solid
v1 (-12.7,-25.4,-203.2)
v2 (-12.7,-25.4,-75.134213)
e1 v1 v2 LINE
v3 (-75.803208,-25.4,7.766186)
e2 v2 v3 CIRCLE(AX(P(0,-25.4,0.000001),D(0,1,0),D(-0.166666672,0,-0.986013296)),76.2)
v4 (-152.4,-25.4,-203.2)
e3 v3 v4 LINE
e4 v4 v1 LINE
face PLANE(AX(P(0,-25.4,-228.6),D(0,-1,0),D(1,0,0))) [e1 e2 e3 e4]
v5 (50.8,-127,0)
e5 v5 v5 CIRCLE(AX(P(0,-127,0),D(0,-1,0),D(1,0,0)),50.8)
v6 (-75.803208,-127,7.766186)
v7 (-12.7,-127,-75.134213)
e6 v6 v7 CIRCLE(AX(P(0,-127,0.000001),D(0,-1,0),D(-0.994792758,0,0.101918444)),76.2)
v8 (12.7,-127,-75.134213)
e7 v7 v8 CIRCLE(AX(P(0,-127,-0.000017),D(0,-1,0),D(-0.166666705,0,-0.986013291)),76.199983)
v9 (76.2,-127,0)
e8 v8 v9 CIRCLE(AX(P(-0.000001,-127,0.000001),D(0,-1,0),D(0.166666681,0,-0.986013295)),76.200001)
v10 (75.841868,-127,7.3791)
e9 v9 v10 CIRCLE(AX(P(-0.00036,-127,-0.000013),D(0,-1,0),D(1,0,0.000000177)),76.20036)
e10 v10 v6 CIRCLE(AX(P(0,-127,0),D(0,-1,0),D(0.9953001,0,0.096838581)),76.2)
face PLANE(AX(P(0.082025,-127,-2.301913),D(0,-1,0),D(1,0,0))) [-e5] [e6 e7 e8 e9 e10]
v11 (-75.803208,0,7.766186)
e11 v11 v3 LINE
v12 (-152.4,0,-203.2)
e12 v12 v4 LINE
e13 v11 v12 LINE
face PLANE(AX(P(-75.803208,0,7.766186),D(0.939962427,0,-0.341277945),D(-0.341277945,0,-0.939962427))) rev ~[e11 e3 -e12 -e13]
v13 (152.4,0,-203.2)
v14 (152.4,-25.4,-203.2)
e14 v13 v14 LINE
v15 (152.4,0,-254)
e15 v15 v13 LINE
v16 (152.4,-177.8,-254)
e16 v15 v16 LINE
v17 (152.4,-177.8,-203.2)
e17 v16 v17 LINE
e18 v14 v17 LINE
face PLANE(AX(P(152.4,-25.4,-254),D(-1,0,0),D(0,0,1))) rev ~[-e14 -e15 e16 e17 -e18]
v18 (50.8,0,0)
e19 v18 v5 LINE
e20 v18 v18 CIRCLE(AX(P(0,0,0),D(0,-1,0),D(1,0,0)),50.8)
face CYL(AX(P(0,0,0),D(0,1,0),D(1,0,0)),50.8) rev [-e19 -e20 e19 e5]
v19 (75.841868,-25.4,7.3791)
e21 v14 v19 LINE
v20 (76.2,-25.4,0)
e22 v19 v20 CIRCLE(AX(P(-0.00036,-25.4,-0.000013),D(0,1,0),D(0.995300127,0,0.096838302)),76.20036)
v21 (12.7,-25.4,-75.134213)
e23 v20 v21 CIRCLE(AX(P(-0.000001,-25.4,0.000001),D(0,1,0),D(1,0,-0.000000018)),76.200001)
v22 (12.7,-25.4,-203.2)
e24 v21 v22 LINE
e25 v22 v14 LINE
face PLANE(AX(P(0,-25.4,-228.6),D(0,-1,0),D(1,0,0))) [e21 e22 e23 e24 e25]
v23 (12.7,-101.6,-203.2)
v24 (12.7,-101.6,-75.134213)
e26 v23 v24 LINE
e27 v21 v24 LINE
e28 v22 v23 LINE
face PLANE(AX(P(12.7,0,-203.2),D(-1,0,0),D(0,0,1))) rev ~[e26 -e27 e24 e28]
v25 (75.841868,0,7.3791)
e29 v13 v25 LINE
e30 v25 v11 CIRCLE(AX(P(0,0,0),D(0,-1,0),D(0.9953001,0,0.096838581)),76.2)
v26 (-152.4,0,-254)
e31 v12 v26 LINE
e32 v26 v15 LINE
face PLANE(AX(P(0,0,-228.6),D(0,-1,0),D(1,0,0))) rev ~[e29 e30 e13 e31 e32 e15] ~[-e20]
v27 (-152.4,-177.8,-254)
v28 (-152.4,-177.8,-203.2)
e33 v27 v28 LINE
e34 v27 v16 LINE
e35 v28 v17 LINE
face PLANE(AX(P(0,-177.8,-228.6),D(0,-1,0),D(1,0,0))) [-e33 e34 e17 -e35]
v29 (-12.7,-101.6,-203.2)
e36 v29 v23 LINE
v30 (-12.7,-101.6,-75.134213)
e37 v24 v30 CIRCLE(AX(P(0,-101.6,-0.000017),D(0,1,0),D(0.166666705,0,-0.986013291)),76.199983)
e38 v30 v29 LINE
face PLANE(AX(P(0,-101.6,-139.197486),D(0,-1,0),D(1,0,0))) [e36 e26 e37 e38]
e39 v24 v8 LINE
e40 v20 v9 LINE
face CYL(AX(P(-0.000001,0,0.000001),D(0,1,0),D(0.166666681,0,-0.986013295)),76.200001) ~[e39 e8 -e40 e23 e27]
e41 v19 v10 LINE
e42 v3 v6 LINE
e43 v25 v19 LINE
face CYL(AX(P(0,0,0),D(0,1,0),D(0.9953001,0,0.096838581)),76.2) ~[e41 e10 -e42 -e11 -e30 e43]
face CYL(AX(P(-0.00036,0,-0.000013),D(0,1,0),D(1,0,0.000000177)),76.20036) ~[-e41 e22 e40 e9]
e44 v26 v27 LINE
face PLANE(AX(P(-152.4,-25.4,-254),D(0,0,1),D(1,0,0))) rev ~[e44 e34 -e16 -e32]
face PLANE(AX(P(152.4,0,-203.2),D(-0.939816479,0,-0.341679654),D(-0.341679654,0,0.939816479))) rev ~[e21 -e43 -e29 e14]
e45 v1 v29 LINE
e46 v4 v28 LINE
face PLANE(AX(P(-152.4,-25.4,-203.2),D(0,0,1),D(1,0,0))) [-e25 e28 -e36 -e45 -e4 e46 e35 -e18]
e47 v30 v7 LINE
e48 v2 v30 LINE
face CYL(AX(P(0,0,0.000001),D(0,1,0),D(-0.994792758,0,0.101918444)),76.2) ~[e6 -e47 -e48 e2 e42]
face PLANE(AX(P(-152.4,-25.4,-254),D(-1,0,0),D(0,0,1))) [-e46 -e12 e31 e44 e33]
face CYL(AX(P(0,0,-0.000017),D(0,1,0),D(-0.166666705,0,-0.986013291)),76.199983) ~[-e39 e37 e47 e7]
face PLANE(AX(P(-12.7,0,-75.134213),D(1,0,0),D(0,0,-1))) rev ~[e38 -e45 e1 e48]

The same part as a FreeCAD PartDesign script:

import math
import FreeCAD as App
import Part
import Sketcher
from FreeCAD import Vector
Q = App.Units.Quantity

doc = App.newDocument("Part")
body = doc.addObject("PartDesign::Body", "Body")

# Sketch on XZ plane
sketch1 = body.newObject("Sketcher::SketchObject", "Sketch")
sketch1.AttachmentSupport = (doc.getObject("XZ_Plane"), [""])
sketch1.MapMode = "FlatFace"
sketch1.addGeometry([
    Part.ArcOfCircle(Part.Circle(Vector(-0.000001, 0.000001, 0), Vector(0, 0, 1), 76.200001), math.radians(-80.405931), math.radians(-0.000001)),  # 0
    Part.ArcOfCircle(Part.Circle(Vector(-0.00036, -0.000013, 0), Vector(0, 0, 1), 76.20036), math.radians(0.00001), math.radians(5.557135)),  # 1
    Part.ArcOfCircle(Part.Circle(Vector(0, 0, 0), Vector(0, 0, 1), 76.2), math.radians(5.557151), math.radians(174.150346)),  # 2
    Part.ArcOfCircle(Part.Circle(Vector(0, 0.000001, 0), Vector(0, 0, 1), 76.2), math.radians(174.150346), math.radians(260.405931)),  # 3
    Part.ArcOfCircle(Part.Circle(Vector(0, -0.000017, 0), Vector(0, 0, 1), 76.199983), math.radians(-99.59407), math.radians(-80.40593)),  # 4
    Part.Circle(Vector(0, 0, 0), Vector(0, 0, 1), 50.8),  # 5
], False)
sketch1.addConstraint([
    Sketcher.Constraint("Coincident", 0, 2, 1, 1),
    Sketcher.Constraint("Coincident", 1, 2, 2, 1),
    Sketcher.Constraint("Coincident", 2, 2, 3, 1),
    Sketcher.Constraint("Coincident", 3, 2, 4, 1),
    Sketcher.Constraint("Coincident", 4, 2, 0, 1),
    Sketcher.Constraint("Coincident", 0, 3, -1, 1),
    Sketcher.Constraint("Coincident", 2, 3, -1, 1),
    Sketcher.Constraint("Coincident", 3, 3, -1, 1),
    Sketcher.Constraint("Coincident", 5, 3, -1, 1),
    Sketcher.Constraint("PointOnObject", 4, 3, -2),
    Sketcher.Constraint("PointOnObject", 0, 2, -1),
    Sketcher.Constraint("Diameter", 5, Q("4 in")),
    Sketcher.Constraint("Radius", 0, Q("3.0000001 in")),
    Sketcher.Constraint("DistanceX", 3, 2, 4, 2, Q("1 in")),
    Sketcher.Constraint("DistanceX", 3, 2, -1, 1, Q("0.5 in")),
    Sketcher.Constraint("Radius", 1, Q("76.20036 mm")),
    Sketcher.Constraint("Radius", 4, Q("76.199983 mm")),
    Sketcher.Constraint("DistanceY", -1, 1, 1, 2, Q("7.3791 mm")),
    Sketcher.Constraint("DistanceY", 1, 3, 2, 2, Q("7.766199 mm")),
])
pad1 = body.newObject("PartDesign::Pad", "Pad")
pad1.Profile = sketch1
pad1.Length = Q("5 in")

# Sketch on XZ plane
sketch2 = body.newObject("Sketcher::SketchObject", "Sketch001")
sketch2.AttachmentSupport = (doc.getObject("XZ_Plane"), [""])
sketch2.MapMode = "FlatFace"
sketch2.addGeometry([
    Part.LineSegment(Vector(12.7, -203.2, 0), Vector(12.7, -75.134213, 0)),
    Part.ArcOfCircle(Part.Circle(Vector(0, -0.000017, 0), Vector(0, 0, 1), 76.199983), math.radians(-99.59407), math.radians(-80.40593)),
    Part.LineSegment(Vector(-12.7, -75.134213, 0), Vector(-12.7, -203.2, 0)),
    Part.LineSegment(Vector(-12.7, -203.2, 0), Vector(12.7, -203.2, 0)),
], False)
sketch2.addConstraint([
    Sketcher.Constraint("Coincident", 0, 2, 1, 2),
    Sketcher.Constraint("Coincident", 1, 1, 2, 1),
    Sketcher.Constraint("Coincident", 2, 2, 3, 1),
    Sketcher.Constraint("Coincident", 3, 2, 0, 1),
    Sketcher.Constraint("Vertical", 0),
    Sketcher.Constraint("Vertical", 2),
    Sketcher.Constraint("Horizontal", 3),
    Sketcher.Constraint("Symmetric", 0, 2, 1, 1, -2),
    Sketcher.Constraint("DistanceX", 3, 1, 3, 2, Q("1 in")),
    Sketcher.Constraint("DistanceY", 2, 2, -1, 1, Q("8 in")),
    Sketcher.Constraint("Radius", 1, Q("76.199983 mm")),
    Sketcher.Constraint("DistanceY", 0, 1, 0, 2, Q("128.065787 mm")),
])
pad2 = body.newObject("PartDesign::Pad", "Pad001")
pad2.Profile = sketch2
pad2.Length = Q("4 in")

# Sketch on XZ plane
sketch3 = body.newObject("Sketcher::SketchObject", "Sketch002")
sketch3.AttachmentSupport = (doc.getObject("XZ_Plane"), [""])
sketch3.MapMode = "FlatFace"
sketch3.addGeometry([
    Part.ArcOfCircle(Part.Circle(Vector(0, 0.000001, 0), Vector(0, 0, 1), 76.2), math.radians(174.150346), math.radians(260.405931)),  # 0
    Part.LineSegment(Vector(-75.803208, 7.766186, 0), Vector(-152.4, -203.2, 0)),  # 1
    Part.LineSegment(Vector(-152.4, -203.2, 0), Vector(-12.7, -203.2, 0)),  # 2
    Part.LineSegment(Vector(-12.7, -203.2, 0), Vector(-12.7, -75.134213, 0)),  # 3
    Part.ArcOfCircle(Part.Circle(Vector(-0.00036, -0.000013, 0), Vector(0, 0, 1), 76.20036), math.radians(0.00001), math.radians(5.557135)),  # 4
    Part.ArcOfCircle(Part.Circle(Vector(-0.000001, 0.000001, 0), Vector(0, 0, 1), 76.200001), math.radians(-80.405931), math.radians(-0.000001)),  # 5
    Part.LineSegment(Vector(12.7, -75.134213, 0), Vector(12.7, -203.2, 0)),  # 6
    Part.LineSegment(Vector(12.7, -203.2, 0), Vector(152.4, -203.2, 0)),  # 7
    Part.LineSegment(Vector(152.4, -203.2, 0), Vector(75.841868, 7.3791, 0)),  # 8
], False)
sketch3.addConstraint([
    Sketcher.Constraint("Coincident", 0, 1, 1, 1),
    Sketcher.Constraint("Coincident", 1, 2, 2, 1),
    Sketcher.Constraint("Coincident", 2, 2, 3, 1),
    Sketcher.Constraint("Coincident", 3, 2, 0, 2),
    Sketcher.Constraint("Tangent", 4, 1, 5, 2),
    Sketcher.Constraint("Coincident", 5, 1, 6, 1),
    Sketcher.Constraint("Coincident", 6, 2, 7, 1),
    Sketcher.Constraint("Coincident", 7, 2, 8, 1),
    Sketcher.Constraint("Coincident", 8, 2, 4, 2),
    Sketcher.Constraint("Horizontal", 2),
    Sketcher.Constraint("Vertical", 3),
    Sketcher.Constraint("Vertical", 6),
    Sketcher.Constraint("Horizontal", 7),
    Sketcher.Constraint("Coincident", 0, 3, -1, 1),
    Sketcher.Constraint("Coincident", 5, 3, -1, 1),
    Sketcher.Constraint("Equal", 0, 5),
    Sketcher.Constraint("Symmetric", 2, 2, 6, 2, -2),
    Sketcher.Constraint("PointOnObject", 4, 1, -1),
    Sketcher.Constraint("Equal", 2, 7),
    Sketcher.Constraint("Radius", 0, Q("3 in")),
    Sketcher.Constraint("DistanceX", 2, 1, 2, 2, Q("5.5 in")),
    Sketcher.Constraint("DistanceX", 1, 2, -1, 1, Q("6 in")),
    Sketcher.Constraint("DistanceY", 1, 2, -1, 1, Q("8 in")),
    Sketcher.Constraint("Radius", 4, Q("76.20036 mm")),
    Sketcher.Constraint("DistanceY", -1, 1, 8, 2, Q("7.3791 mm")),
    Sketcher.Constraint("DistanceY", 4, 3, 0, 1, Q("7.766199 mm")),
])
pad3 = body.newObject("PartDesign::Pad", "Pad002")
pad3.Profile = sketch3
pad3.Length = Q("1 in")

# Sketch on XZ plane
sketch4 = body.newObject("Sketcher::SketchObject", "Sketch003")
sketch4.AttachmentSupport = (doc.getObject("XZ_Plane"), [""])
sketch4.MapMode = "FlatFace"
sketch4.addGeometry([
    Part.LineSegment(Vector(152.4, -254, 0), Vector(152.4, -203.2, 0)),
    Part.LineSegment(Vector(152.4, -203.2, 0), Vector(-152.4, -203.2, 0)),
    Part.LineSegment(Vector(-152.4, -203.2, 0), Vector(-152.4, -254, 0)),
    Part.LineSegment(Vector(-152.4, -254, 0), Vector(152.4, -254, 0)),
], False)
sketch4.addConstraint([
    Sketcher.Constraint("Coincident", 0, 2, 1, 1),
    Sketcher.Constraint("Coincident", 1, 2, 2, 1),
    Sketcher.Constraint("Coincident", 2, 2, 3, 1),
    Sketcher.Constraint("Coincident", 3, 2, 0, 1),
    Sketcher.Constraint("Vertical", 0),
    Sketcher.Constraint("Horizontal", 1),
    Sketcher.Constraint("Vertical", 2),
    Sketcher.Constraint("Horizontal", 3),
    Sketcher.Constraint("DistanceX", 1, 2, 1, 1, Q("12 in")),
    Sketcher.Constraint("DistanceY", 0, 1, 0, 2, Q("2 in")),
    Sketcher.Constraint("DistanceX", -1, 1, 0, 2, Q("6 in")),
    Sketcher.Constraint("DistanceY", 0, 2, -1, 1, Q("8 in")),
])
pad4 = body.newObject("PartDesign::Pad", "Pad003")
pad4.Profile = sketch4
pad4.Length = Q("1 in")

# Sketch on XZ plane
sketch5 = body.newObject("Sketcher::SketchObject", "Sketch004")
sketch5.AttachmentSupport = (doc.getObject("XZ_Plane"), [""])
sketch5.MapMode = "FlatFace"
sketch5.AttachmentOffset = App.Placement(Vector(0, 0, 1 * 25.4), App.Rotation())
sketch5.addGeometry([
    Part.LineSegment(Vector(-152.4, -203.2, 0), Vector(-152.4, -254, 0)),
    Part.LineSegment(Vector(-152.4, -254, 0), Vector(152.4, -254, 0)),
    Part.LineSegment(Vector(152.4, -254, 0), Vector(152.4, -203.2, 0)),
    Part.LineSegment(Vector(152.4, -203.2, 0), Vector(-152.4, -203.2, 0)),
], False)
sketch5.addConstraint([
    Sketcher.Constraint("Coincident", 0, 2, 1, 1),
    Sketcher.Constraint("Coincident", 1, 2, 2, 1),
    Sketcher.Constraint("Coincident", 2, 2, 3, 1),
    Sketcher.Constraint("Coincident", 3, 2, 0, 1),
    Sketcher.Constraint("Vertical", 0),
    Sketcher.Constraint("Horizontal", 1),
    Sketcher.Constraint("Vertical", 2),
    Sketcher.Constraint("Horizontal", 3),
    Sketcher.Constraint("DistanceX", 1, 1, 1, 2, Q("12 in")),
    Sketcher.Constraint("DistanceY", 0, 2, 0, 1, Q("2 in")),
    Sketcher.Constraint("DistanceX", 0, 2, -1, 1, Q("6 in")),
    Sketcher.Constraint("DistanceY", 0, 2, -1, 1, Q("10 in")),
])
pad5 = body.newObject("PartDesign::Pad", "Pad004")
pad5.Profile = sketch5
pad5.Length = Q("6 in")

doc.recompute()
